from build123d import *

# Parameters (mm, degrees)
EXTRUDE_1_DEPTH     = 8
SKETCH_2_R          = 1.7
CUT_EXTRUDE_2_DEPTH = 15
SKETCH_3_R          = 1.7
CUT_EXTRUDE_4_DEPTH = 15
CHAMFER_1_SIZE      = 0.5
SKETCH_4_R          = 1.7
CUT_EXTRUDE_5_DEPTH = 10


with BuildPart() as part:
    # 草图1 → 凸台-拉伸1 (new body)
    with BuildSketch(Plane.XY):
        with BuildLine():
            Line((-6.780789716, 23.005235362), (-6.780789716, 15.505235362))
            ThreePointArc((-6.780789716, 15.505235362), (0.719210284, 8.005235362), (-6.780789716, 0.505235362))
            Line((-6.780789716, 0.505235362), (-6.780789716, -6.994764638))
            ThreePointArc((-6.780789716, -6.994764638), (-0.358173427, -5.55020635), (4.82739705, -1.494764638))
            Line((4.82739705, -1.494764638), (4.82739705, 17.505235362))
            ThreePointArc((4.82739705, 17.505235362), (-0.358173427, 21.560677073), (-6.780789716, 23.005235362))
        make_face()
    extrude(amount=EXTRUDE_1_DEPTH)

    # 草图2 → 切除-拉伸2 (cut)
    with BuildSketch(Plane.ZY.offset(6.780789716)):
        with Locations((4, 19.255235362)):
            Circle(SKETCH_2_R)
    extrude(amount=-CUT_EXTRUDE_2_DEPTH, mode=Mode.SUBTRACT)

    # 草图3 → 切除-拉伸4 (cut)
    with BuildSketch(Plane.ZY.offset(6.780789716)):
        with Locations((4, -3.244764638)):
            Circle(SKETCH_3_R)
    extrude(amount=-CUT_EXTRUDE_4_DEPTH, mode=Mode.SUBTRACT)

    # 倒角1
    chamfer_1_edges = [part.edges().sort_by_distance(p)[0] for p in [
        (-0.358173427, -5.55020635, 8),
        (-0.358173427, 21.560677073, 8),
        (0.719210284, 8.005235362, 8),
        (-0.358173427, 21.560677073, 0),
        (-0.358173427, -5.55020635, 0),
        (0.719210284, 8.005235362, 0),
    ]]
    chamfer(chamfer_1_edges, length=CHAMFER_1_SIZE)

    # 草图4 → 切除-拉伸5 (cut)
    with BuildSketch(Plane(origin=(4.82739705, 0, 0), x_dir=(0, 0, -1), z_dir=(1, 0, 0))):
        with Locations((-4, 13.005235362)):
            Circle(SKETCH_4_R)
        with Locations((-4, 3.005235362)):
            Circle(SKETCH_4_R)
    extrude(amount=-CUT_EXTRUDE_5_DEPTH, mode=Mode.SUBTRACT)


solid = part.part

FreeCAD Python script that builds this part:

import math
import FreeCAD as App
import Part
import Sketcher


def edges_at(feature, points):
    """Names of the edges that pass closest to the given points."""
    edges = feature.Shape.Edges
    near = lambda p: min(range(len(edges)), key=lambda i: edges[i].distToShape(Part.Vertex(*p))[0])
    return sorted({f"Edge{near(p) + 1}" for p in points})

doc = App.newDocument("Part")
body = doc.addObject("PartDesign::Body", "Body")

# Sketch on XY plane
sketch1 = body.newObject("Sketcher::SketchObject", "Sketch")
sketch1.AttachmentSupport = (doc.getObject("XY_Plane"), [""])
sketch1.MapMode = "FlatFace"
sketch1.addGeometry(Part.LineSegment(App.Vector(-6.78079, 23.005235, 0), App.Vector(-6.78079, 15.505235, 0)), False)
sketch1.addGeometry(Part.ArcOfCircle(Part.Circle(App.Vector(-6.78079, 8.005235, 0), App.Vector(0, 0, 1), 7.5), math.radians(-90), math.radians(90)), False)
sketch1.addGeometry(Part.LineSegment(App.Vector(-6.78079, 0.505235, 0), App.Vector(-6.78079, -6.994765, 0)), False)
sketch1.addGeometry(Part.ArcOfCircle(Part.Circle(App.Vector(-6.78079, 8.005235, 0), App.Vector(0, 0, 1), 15), math.radians(-90), math.radians(-39.29648)), False)
sketch1.addGeometry(Part.LineSegment(App.Vector(4.827397, -1.494765, 0), App.Vector(4.827397, 17.505235, 0)), False)
sketch1.addGeometry(Part.ArcOfCircle(Part.Circle(App.Vector(-6.78079, 8.005235, 0), App.Vector(0, 0, 1), 15), math.radians(39.29648), math.radians(90)), False)
sketch1.addConstraint(Sketcher.Constraint("Coincident", 0, 2, 1, 2))
sketch1.addConstraint(Sketcher.Constraint("Coincident", 1, 1, 2, 1))
sketch1.addConstraint(Sketcher.Constraint("Coincident", 2, 2, 3, 1))
sketch1.addConstraint(Sketcher.Constraint("Coincident", 3, 2, 4, 1))
sketch1.addConstraint(Sketcher.Constraint("Coincident", 4, 2, 5, 1))
sketch1.addConstraint(Sketcher.Constraint("Coincident", 5, 2, 0, 1))
sketch1.addConstraint(Sketcher.Constraint("Vertical", 0))
sketch1.addConstraint(Sketcher.Constraint("Vertical", 2))
sketch1.addConstraint(Sketcher.Constraint("Vertical", 4))
sketch1.addConstraint(Sketcher.Constraint("Coincident", 3, 3, 1, 3))
sketch1.addConstraint(Sketcher.Constraint("Coincident", 5, 3, 1, 3))
sketch1.addConstraint(Sketcher.Constraint("Equal", 3, 5))
sketch1.addConstraint(Sketcher.Constraint("Vertical", 5, 3, 0, 2))
sketch1.addConstraint(Sketcher.Constraint("Vertical", 0, 2, 1, 1))
sketch1.addConstraint(Sketcher.Constraint("Radius", 3, 15.0))
sketch1.addConstraint(Sketcher.Constraint("Radius", 1, 7.5))
sketch1.addConstraint(Sketcher.Constraint("DistanceY", 4, 1, 4, 2, 19.0))
sketch1.addConstraint(Sketcher.Constraint("DistanceX", 1, 3, -1, 1, 6.78079))
sketch1.addConstraint(Sketcher.Constraint("DistanceY", -1, 1, 1, 3, 8.005235))
pad1 = body.newObject("PartDesign::Pad", "Pad")
pad1.Profile = sketch1
pad1.Length = 8

# Sketch on YZ plane
sketch2 = body.newObject("Sketcher::SketchObject", "Sketch001")
sketch2.AttachmentSupport = (doc.getObject("YZ_Plane"), [""])
sketch2.MapMode = "FlatFace"
sketch2.AttachmentOffset = App.Placement(App.Vector(0, 0, -6.78079), App.Rotation())
sketch2.addGeometry(Part.Circle(App.Vector(19.255235, 4, 0), App.Vector(0, 0, 1), 1.7), False)
sketch2.addConstraint(Sketcher.Constraint("Diameter", 0, 3.4))
sketch2.addConstraint(Sketcher.Constraint("DistanceY", -1, 1, 0, 3, 4.0))
sketch2.addConstraint(Sketcher.Constraint("DistanceX", -1, 1, 0, 3, 19.255235))
pocket1 = body.newObject("PartDesign::Pocket", "Pocket")
pocket1.Profile = sketch2
pocket1.Length = 15
pocket1.Reversed = True

# Sketch on YZ plane
sketch3 = body.newObject("Sketcher::SketchObject", "Sketch002")
sketch3.AttachmentSupport = (doc.getObject("YZ_Plane"), [""])
sketch3.MapMode = "FlatFace"
sketch3.AttachmentOffset = App.Placement(App.Vector(0, 0, -6.78079), App.Rotation())
sketch3.addGeometry(Part.Circle(App.Vector(-3.244765, 4, 0), App.Vector(0, 0, 1), 1.7), False)
sketch3.addConstraint(Sketcher.Constraint("Diameter", 0, 3.4))
sketch3.addConstraint(Sketcher.Constraint("DistanceY", -1, 1, 0, 3, 4.0))
sketch3.addConstraint(Sketcher.Constraint("DistanceX", 0, 3, -1, 1, 3.244765))
pocket2 = body.newObject("PartDesign::Pocket", "Pocket001")
pocket2.Profile = sketch3
pocket2.Length = 15
pocket2.Reversed = True
doc.recompute()

chamfer = body.newObject("PartDesign::Chamfer", "Chamfer")
chamfer.Base = (pocket2, edges_at(pocket2, [
    (-0.358, -5.55, 8),
    (-0.358, 21.561, 8),
    (0.719, 8.005, 8),
    (-0.358, 21.561, 0),
    (-0.358, -5.55, 0),
    (0.719, 8.005, 0),
]))
chamfer.Size = 0.5

# Sketch on YZ plane
sketch4 = body.newObject("Sketcher::SketchObject", "Sketch003")
sketch4.AttachmentSupport = (doc.getObject("YZ_Plane"), [""])
sketch4.MapMode = "FlatFace"
sketch4.AttachmentOffset = App.Placement(App.Vector(0, 0, 4.827397), App.Rotation())
sketch4.addGeometry(Part.Circle(App.Vector(13.005235, 4, 0), App.Vector(0, 0, 1), 1.7), False)
sketch4.addGeometry(Part.Circle(App.Vector(3.005235, 4, 0), App.Vector(0, 0, 1), 1.7), False)
sketch4.addConstraint(Sketcher.Constraint("Equal", 0, 1))
sketch4.addConstraint(Sketcher.Constraint("Horizontal", 0, 3, 1, 3))
sketch4.addConstraint(Sketcher.Constraint("Diameter", 0, 3.4))
sketch4.addConstraint(Sketcher.Constraint("DistanceY", -1, 1, 0, 3, 4.0))
sketch4.addConstraint(Sketcher.Constraint("DistanceX", 1, 3, 0, 3, 10.0))
sketch4.addConstraint(Sketcher.Constraint("DistanceX", -1, 1, 0, 3, 13.005235))
pocket3 = body.newObject("PartDesign::Pocket", "Pocket002")
pocket3.Profile = sketch4
pocket3.Length = 10

doc.recompute()
